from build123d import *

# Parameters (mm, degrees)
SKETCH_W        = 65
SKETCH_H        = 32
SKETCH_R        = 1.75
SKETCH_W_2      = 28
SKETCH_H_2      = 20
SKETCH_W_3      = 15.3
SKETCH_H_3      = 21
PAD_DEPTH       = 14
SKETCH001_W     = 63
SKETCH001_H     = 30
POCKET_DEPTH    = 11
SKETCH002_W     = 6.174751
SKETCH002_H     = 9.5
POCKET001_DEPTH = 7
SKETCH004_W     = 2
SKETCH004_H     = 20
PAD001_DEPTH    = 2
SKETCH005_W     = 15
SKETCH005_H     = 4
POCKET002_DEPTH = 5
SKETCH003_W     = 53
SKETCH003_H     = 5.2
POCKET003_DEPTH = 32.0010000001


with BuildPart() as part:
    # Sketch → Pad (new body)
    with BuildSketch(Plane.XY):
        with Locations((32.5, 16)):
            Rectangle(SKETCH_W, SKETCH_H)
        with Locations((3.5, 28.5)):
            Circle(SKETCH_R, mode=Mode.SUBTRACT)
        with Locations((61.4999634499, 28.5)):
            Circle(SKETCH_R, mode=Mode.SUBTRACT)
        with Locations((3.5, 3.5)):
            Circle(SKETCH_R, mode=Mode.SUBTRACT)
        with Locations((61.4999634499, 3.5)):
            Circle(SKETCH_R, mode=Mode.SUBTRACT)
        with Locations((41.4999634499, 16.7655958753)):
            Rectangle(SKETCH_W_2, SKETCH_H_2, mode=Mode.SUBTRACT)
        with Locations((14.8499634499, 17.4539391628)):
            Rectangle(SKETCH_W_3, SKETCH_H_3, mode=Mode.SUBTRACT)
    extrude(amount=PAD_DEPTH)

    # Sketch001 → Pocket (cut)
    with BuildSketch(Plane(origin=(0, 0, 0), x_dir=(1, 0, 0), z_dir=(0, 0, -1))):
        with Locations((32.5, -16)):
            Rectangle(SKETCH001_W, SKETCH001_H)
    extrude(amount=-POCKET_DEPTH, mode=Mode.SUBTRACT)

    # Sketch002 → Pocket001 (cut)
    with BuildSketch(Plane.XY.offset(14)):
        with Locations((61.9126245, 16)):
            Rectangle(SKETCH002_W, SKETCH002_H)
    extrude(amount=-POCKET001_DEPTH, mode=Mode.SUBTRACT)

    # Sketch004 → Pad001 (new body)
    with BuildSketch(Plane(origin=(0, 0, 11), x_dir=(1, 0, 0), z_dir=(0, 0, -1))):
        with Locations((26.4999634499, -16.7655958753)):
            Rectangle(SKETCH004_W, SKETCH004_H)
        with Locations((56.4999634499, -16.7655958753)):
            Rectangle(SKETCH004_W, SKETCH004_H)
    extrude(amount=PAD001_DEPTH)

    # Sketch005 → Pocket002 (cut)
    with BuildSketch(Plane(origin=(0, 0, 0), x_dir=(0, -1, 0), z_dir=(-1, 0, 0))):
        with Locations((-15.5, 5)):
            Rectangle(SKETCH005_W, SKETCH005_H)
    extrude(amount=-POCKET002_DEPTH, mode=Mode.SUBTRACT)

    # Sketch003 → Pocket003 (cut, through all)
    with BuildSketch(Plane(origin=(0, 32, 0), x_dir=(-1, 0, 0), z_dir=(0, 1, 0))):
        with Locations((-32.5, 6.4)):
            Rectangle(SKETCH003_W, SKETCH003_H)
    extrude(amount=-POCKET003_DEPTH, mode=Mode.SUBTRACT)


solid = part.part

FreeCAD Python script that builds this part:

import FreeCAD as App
import Part
import Sketcher

V = App.Vector

doc = App.newDocument("Part")
body = doc.addObject("PartDesign::Body", "Body")

sketch1 = doc.addObject("Sketcher::SketchObject", "Sketch")
body.addObject(sketch1)
sketch1.AttachmentSupport = (doc.XY_Plane, [""])
sketch1.MapMode = "FlatFace"
sketch1.addGeometry([
    Part.LineSegment(V(0, 32, 0), V(0, 0, 0)),
    Part.LineSegment(V(0, 0, 0), V(65, 0, 0)),
    Part.LineSegment(V(65, 0, 0), V(65, 32, 0)),
    Part.LineSegment(V(65, 32, 0), V(0, 32, 0)),
    Part.Circle(V(3.5, 3.5, 0), V(0, 0, 1), 1.8),
    Part.Circle(V(61.5, 3.5, 0), V(0, 0, 1), 1.8),
    Part.LineSegment(V(22.5, 7, 0), V(7.2, 7, 0)),
    Part.LineSegment(V(7.2, 7, 0), V(7.2, 28, 0)),
    Part.LineSegment(V(7.2, 28, 0), V(22.5, 28, 0)),
    Part.LineSegment(V(22.5, 28, 0), V(22.5, 7, 0)),
    Part.Circle(V(3.5, 28.5, 0), V(0, 0, 1), 1.8),
    Part.LineSegment(V(55.5, 6.8, 0), V(27.5, 6.8, 0)),
    Part.LineSegment(V(27.5, 6.8, 0), V(27.5, 26.8, 0)),
    Part.LineSegment(V(27.5, 26.8, 0), V(55.5, 26.8, 0)),
    Part.LineSegment(V(55.5, 26.8, 0), V(55.5, 6.8, 0)),
    Part.Circle(V(61.5, 28.5, 0), V(0, 0, 1), 1.8),
], False)
sketch1.addConstraint([
    Sketcher.Constraint("Coincident", 0, 2, 1, 1),
    Sketcher.Constraint("Coincident", 1, 2, 2, 1),
    Sketcher.Constraint("Coincident", 2, 2, 3, 1),
    Sketcher.Constraint("Coincident", 3, 2, 0, 1),
    Sketcher.Constraint("Coincident", 6, 2, 7, 1),
    Sketcher.Constraint("Coincident", 7, 2, 8, 1),
    Sketcher.Constraint("Coincident", 8, 2, 9, 1),
    Sketcher.Constraint("Coincident", 9, 2, 6, 1),
    Sketcher.Constraint("Coincident", 11, 2, 12, 1),
    Sketcher.Constraint("Coincident", 12, 2, 13, 1),
    Sketcher.Constraint("Coincident", 13, 2, 14, 1),
    Sketcher.Constraint("Coincident", 14, 2, 11, 1),
    Sketcher.Constraint("Vertical", 0),
    Sketcher.Constraint("Horizontal", 1),
    Sketcher.Constraint("Vertical", 2),
    Sketcher.Constraint("Horizontal", 3),
    Sketcher.Constraint("Horizontal", 6),
    Sketcher.Constraint("Vertical", 7),
    Sketcher.Constraint("Horizontal", 8),
    Sketcher.Constraint("Vertical", 9),
    Sketcher.Constraint("Horizontal", 11),
    Sketcher.Constraint("Vertical", 12),
    Sketcher.Constraint("Horizontal", 13),
    Sketcher.Constraint("Vertical", 14),
    Sketcher.Constraint("Coincident", 0, 2, -1, 1),
    Sketcher.Constraint("Equal", 4, 5),
    Sketcher.Constraint("Equal", 5, 10),
    Sketcher.Constraint("Equal", 10, 15),
    Sketcher.Constraint("Horizontal", 4, 3, 5, 3),
    Sketcher.Constraint("Horizontal", 10, 3, 15, 3),
    Sketcher.Constraint("Vertical", 4, 3, 10, 3),
    Sketcher.Constraint("Vertical", 5, 3, 15, 3),
    Sketcher.Constraint("Diameter", 4, 3.5),
    Sketcher.Constraint("DistanceX", 1, 1, 1, 2, 65.0),
    Sketcher.Constraint("DistanceX", 11, 2, 11, 1, 28.0),
    Sketcher.Constraint("DistanceY", 0, 2, 0, 1, 32.0),
    Sketcher.Constraint("DistanceY", 7, 1, 7, 2, 21.0),
    Sketcher.Constraint("DistanceY", 12, 1, 12, 2, 20.0),
    Sketcher.Constraint("DistanceX", 6, 2, 6, 1, 15.3),
    Sketcher.Constraint("DistanceY", 4, 3, 10, 3, 25.0),
    Sketcher.Constraint("DistanceX", 9, 2, 11, 2, 5.0),
    Sketcher.Constraint("DistanceX", 13, 2, 15, 3, 6.0),
    Sketcher.Constraint("DistanceX", -1, 1, 4, 3, 3.5),
    Sketcher.Constraint("DistanceY", -1, 1, 4, 3, 3.5),
    Sketcher.Constraint("DistanceY", -1, 1, 6, 2, 6.953939),
    Sketcher.Constraint("DistanceX", -1, 1, 5, 3, 61.499963),
    Sketcher.Constraint("DistanceY", -1, 1, 11, 2, 6.765596),
])
pad1 = doc.addObject("PartDesign::Pad", "Pad")
body.addObject(pad1)
pad1.Profile = sketch1
pad1.Length = 14

sketch2 = doc.addObject("Sketcher::SketchObject", "Sketch001")
body.addObject(sketch2)
sketch2.AttachmentSupport = (doc.XY_Plane, [""])
sketch2.MapMode = "FlatFace"
sketch2.addGeometry([
    Part.LineSegment(V(1, 1, 0), V(1, 31, 0)),
    Part.LineSegment(V(1, 31, 0), V(64, 31, 0)),
    Part.LineSegment(V(64, 31, 0), V(64, 1, 0)),
    Part.LineSegment(V(64, 1, 0), V(1, 1, 0)),
], False)
sketch2.addConstraint([
    Sketcher.Constraint("Coincident", 0, 2, 1, 1),
    Sketcher.Constraint("Coincident", 1, 2, 2, 1),
    Sketcher.Constraint("Coincident", 2, 2, 3, 1),
    Sketcher.Constraint("Coincident", 3, 2, 0, 1),
    Sketcher.Constraint("Vertical", 0),
    Sketcher.Constraint("Horizontal", 1),
    Sketcher.Constraint("Vertical", 2),
    Sketcher.Constraint("Horizontal", 3),
    Sketcher.Constraint("DistanceX", 1, 1, 1, 2, 63.0),
    Sketcher.Constraint("DistanceY", 0, 1, 0, 2, 30.0),
    Sketcher.Constraint("DistanceX", -1, 1, 0, 2, 1.0),
    Sketcher.Constraint("DistanceY", -1, 1, 0, 2, 31.0),
])
pocket1 = doc.addObject("PartDesign::Pocket", "Pocket")
body.addObject(pocket1)
pocket1.Profile = sketch2
pocket1.Length = 11
pocket1.Reversed = True

sketch3 = doc.addObject("Sketcher::SketchObject", "Sketch002")
body.addObject(sketch3)
sketch3.AttachmentSupport = (doc.XY_Plane, [""])
sketch3.MapMode = "FlatFace"
sketch3.AttachmentOffset = App.Placement(V(0, 0, 14), App.Rotation())
sketch3.addGeometry([
    Part.LineSegment(V(59, 21, 0), V(59, 11, 0)),
    Part.LineSegment(V(59, 11, 0), V(65, 11, 0)),
    Part.LineSegment(V(65, 11, 0), V(65, 21, 0)),
    Part.LineSegment(V(65, 21, 0), V(59, 21, 0)),
], False)
sketch3.addConstraint([
    Sketcher.Constraint("Coincident", 0, 2, 1, 1),
    Sketcher.Constraint("Coincident", 1, 2, 2, 1),
    Sketcher.Constraint("Coincident", 2, 2, 3, 1),
    Sketcher.Constraint("Coincident", 3, 2, 0, 1),
    Sketcher.Constraint("Vertical", 0),
    Sketcher.Constraint("Horizontal", 1),
    Sketcher.Constraint("Vertical", 2),
    Sketcher.Constraint("Horizontal", 3),
    Sketcher.Constraint("DistanceY", 0, 2, 0, 1, 9.5),
    Sketcher.Constraint("DistanceX", -1, 1, 1, 2, 65.0),
    Sketcher.Constraint("DistanceY", -1, 1, 0, 2, 11.25),
    Sketcher.Constraint("DistanceX", 1, 1, 1, 2, 6.174751),
])
pocket2 = doc.addObject("PartDesign::Pocket", "Pocket001")
body.addObject(pocket2)
pocket2.Profile = sketch3
pocket2.Length = 7

sketch4 = doc.addObject("Sketcher::SketchObject", "Sketch003")
body.addObject(sketch4)
sketch4.AttachmentSupport = (doc.XY_Plane, [""])
sketch4.MapMode = "FlatFace"
sketch4.AttachmentOffset = App.Placement(V(0, 0, 11), App.Rotation())
sketch4.addGeometry([
    Part.LineSegment(V(25.5, 6.8, 0), V(25.5, 26.8, 0)),
    Part.LineSegment(V(25.5, 26.8, 0), V(27.5, 26.8, 0)),
    Part.LineSegment(V(27.5, 26.8, 0), V(27.5, 6.8, 0)),
    Part.LineSegment(V(27.5, 6.8, 0), V(25.5, 6.8, 0)),
    Part.LineSegment(V(55.5, 6.8, 0), V(55.5, 26.8, 0)),
    Part.LineSegment(V(55.5, 26.8, 0), V(57.5, 26.8, 0)),
    Part.LineSegment(V(57.5, 26.8, 0), V(57.5, 6.8, 0)),
    Part.LineSegment(V(57.5, 6.8, 0), V(55.5, 6.8, 0)),
], False)
sketch4.addConstraint([
    Sketcher.Constraint("Coincident", 0, 2, 1, 1),
    Sketcher.Constraint("Coincident", 1, 2, 2, 1),
    Sketcher.Constraint("Coincident", 2, 2, 3, 1),
    Sketcher.Constraint("Coincident", 3, 2, 0, 1),
    Sketcher.Constraint("Coincident", 4, 2, 5, 1),
    Sketcher.Constraint("Coincident", 5, 2, 6, 1),
    Sketcher.Constraint("Coincident", 6, 2, 7, 1),
    Sketcher.Constraint("Coincident", 7, 2, 4, 1),
    Sketcher.Constraint("Vertical", 0),
    Sketcher.Constraint("Horizontal", 1),
    Sketcher.Constraint("Vertical", 2),
    Sketcher.Constraint("Horizontal", 3),
    Sketcher.Constraint("Vertical", 4),
    Sketcher.Constraint("Horizontal", 5),
    Sketcher.Constraint("Vertical", 6),
    Sketcher.Constraint("Horizontal", 7),
    Sketcher.Constraint("Horizontal", 1, 2, 4, 2),
    Sketcher.Constraint("Horizontal", 3, 2, 6, 2),
    Sketcher.Constraint("Equal", 3, 5),
    Sketcher.Constraint("DistanceX", 1, 1, 1, 2, 2.0),
    Sketcher.Constraint("DistanceY", 0, 1, 0, 2, 20.0),
    Sketcher.Constraint("DistanceX", 1, 2, 4, 2, 28.0),
    Sketcher.Constraint("DistanceX", -1, 1, 0, 2, 25.499963),
    Sketcher.Constraint("DistanceY", -1, 1, 0, 2, 26.765596),
])
pad2 = doc.addObject("PartDesign::Pad", "Pad001")
body.addObject(pad2)
pad2.Profile = sketch4
pad2.Length = 2
pad2.Reversed = True

sketch5 = doc.addObject("Sketcher::SketchObject", "Sketch004")
body.addObject(sketch5)
sketch5.AttachmentSupport = (doc.YZ_Plane, [""])
sketch5.MapMode = "FlatFace"
sketch5.addGeometry([
    Part.LineSegment(V(23, 7, 0), V(23, 3, 0)),
    Part.LineSegment(V(23, 3, 0), V(8, 3, 0)),
    Part.LineSegment(V(8, 3, 0), V(8, 7, 0)),
    Part.LineSegment(V(8, 7, 0), V(23, 7, 0)),
], False)
sketch5.addConstraint([
    Sketcher.Constraint("Coincident", 0, 2, 1, 1),
    Sketcher.Constraint("Coincident", 1, 2, 2, 1),
    Sketcher.Constraint("Coincident", 2, 2, 3, 1),
    Sketcher.Constraint("Coincident", 3, 2, 0, 1),
    Sketcher.Constraint("Vertical", 0),
    Sketcher.Constraint("Horizontal", 1),
    Sketcher.Constraint("Vertical", 2),
    Sketcher.Constraint("Horizontal", 3),
    Sketcher.Constraint("DistanceX", 1, 2, 1, 1, 15.0),
    Sketcher.Constraint("DistanceY", 0, 2, 0, 1, 4.0),
    Sketcher.Constraint("DistanceX", -1, 1, 0, 2, 23.0),
    Sketcher.Constraint("DistanceY", -1, 1, 0, 2, 3.0),
])
pocket3 = doc.addObject("PartDesign::Pocket", "Pocket002")
body.addObject(pocket3)
pocket3.Profile = sketch5
pocket3.Length = 5
pocket3.Reversed = True

sketch6 = doc.addObject("Sketcher::SketchObject", "Sketch005")
body.addObject(sketch6)
sketch6.AttachmentSupport = (doc.XZ_Plane, [""])
sketch6.MapMode = "FlatFace"
sketch6.AttachmentOffset = App.Placement(V(0, 0, -32), App.Rotation())
sketch6.addGeometry([
    Part.LineSegment(V(59, 9, 0), V(59, 4, 0)),
    Part.LineSegment(V(59, 4, 0), V(6, 4, 0)),
    Part.LineSegment(V(6, 4, 0), V(6, 9, 0)),
    Part.LineSegment(V(6, 9, 0), V(59, 9, 0)),
], False)
sketch6.addConstraint([
    Sketcher.Constraint("Coincident", 0, 2, 1, 1),
    Sketcher.Constraint("Coincident", 1, 2, 2, 1),
    Sketcher.Constraint("Coincident", 2, 2, 3, 1),
    Sketcher.Constraint("Coincident", 3, 2, 0, 1),
    Sketcher.Constraint("Vertical", 0),
    Sketcher.Constraint("Horizontal", 1),
    Sketcher.Constraint("Vertical", 2),
    Sketcher.Constraint("Horizontal", 3),
    Sketcher.Constraint("DistanceX", 1, 2, 1, 1, 53.0),
    Sketcher.Constraint("DistanceY", 0, 2, 0, 1, 5.2),
    Sketcher.Constraint("DistanceX", -1, 1, 0, 2, 59.0),
    Sketcher.Constraint("DistanceY", -1, 1, 2, 2, 9.0),
])
pocket4 = doc.addObject("PartDesign::Pocket", "Pocket003")
body.addObject(pocket4)
pocket4.Profile = sketch6
pocket4.Type = "ThroughAll"
pocket4.Reversed = True

doc.recompute()
